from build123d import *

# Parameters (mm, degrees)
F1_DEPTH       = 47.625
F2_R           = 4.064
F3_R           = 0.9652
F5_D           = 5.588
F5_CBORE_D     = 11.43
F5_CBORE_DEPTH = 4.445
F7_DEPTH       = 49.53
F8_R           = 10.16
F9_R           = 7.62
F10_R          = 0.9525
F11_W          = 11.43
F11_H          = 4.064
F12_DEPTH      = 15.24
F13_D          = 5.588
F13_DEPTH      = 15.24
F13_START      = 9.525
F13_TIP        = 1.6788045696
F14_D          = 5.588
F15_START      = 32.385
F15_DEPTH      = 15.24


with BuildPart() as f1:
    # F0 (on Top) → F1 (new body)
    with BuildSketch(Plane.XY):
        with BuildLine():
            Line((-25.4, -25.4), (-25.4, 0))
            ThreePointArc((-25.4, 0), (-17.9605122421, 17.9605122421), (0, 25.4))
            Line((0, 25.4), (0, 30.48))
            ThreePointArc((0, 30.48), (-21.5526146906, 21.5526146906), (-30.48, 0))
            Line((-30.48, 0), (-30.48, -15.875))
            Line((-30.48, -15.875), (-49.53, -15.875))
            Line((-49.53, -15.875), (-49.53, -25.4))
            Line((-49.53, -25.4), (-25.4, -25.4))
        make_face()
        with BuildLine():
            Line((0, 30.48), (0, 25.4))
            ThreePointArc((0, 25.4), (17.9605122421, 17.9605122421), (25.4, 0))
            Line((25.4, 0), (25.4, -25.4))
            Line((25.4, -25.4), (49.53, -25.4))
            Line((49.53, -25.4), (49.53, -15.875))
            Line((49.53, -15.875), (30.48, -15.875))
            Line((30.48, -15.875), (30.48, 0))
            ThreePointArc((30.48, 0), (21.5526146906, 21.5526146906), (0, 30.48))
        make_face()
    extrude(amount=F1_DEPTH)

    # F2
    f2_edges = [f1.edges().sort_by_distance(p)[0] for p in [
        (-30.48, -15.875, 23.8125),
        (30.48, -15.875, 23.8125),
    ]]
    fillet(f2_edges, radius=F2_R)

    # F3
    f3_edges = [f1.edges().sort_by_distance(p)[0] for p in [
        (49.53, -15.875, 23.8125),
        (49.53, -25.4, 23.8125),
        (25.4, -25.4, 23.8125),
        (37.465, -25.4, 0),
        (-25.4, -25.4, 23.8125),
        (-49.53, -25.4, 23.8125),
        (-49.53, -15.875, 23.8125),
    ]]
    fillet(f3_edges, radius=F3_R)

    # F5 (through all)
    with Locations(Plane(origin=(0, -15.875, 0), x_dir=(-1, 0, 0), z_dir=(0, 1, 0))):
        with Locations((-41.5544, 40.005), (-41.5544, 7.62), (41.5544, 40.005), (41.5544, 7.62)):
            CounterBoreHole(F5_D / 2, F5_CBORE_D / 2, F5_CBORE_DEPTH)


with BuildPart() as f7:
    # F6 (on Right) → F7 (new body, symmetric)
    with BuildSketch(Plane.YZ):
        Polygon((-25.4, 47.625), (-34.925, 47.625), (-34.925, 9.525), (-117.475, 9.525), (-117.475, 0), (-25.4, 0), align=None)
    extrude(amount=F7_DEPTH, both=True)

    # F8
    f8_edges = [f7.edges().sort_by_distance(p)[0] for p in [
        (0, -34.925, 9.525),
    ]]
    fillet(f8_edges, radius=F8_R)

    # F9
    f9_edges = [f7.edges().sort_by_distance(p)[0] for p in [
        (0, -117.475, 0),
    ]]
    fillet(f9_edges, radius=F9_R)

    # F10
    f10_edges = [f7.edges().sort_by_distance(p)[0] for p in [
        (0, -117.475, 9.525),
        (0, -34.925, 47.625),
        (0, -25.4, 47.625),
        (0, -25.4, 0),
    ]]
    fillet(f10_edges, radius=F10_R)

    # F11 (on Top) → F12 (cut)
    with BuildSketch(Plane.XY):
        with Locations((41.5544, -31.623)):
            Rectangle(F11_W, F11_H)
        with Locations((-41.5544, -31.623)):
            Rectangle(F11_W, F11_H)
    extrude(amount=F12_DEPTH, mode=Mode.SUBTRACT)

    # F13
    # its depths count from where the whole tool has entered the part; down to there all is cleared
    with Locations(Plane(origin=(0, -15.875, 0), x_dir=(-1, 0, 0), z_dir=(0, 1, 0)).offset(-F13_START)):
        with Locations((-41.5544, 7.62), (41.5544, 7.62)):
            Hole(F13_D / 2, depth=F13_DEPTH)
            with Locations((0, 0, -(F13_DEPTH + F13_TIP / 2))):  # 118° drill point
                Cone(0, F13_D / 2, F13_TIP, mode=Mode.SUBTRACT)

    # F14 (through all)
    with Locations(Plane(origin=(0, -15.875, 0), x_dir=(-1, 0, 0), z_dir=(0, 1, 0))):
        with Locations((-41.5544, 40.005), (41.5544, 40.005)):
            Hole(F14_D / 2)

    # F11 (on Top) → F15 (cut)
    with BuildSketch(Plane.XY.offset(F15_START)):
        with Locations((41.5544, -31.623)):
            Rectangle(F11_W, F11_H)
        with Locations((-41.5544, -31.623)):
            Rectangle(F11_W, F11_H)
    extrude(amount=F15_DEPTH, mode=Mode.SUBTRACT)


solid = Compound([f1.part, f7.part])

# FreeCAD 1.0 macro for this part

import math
import FreeCAD as App
import Part
import Sketcher
from FreeCAD import Vector
Q = App.Units.Quantity


def edges_at(feature, points):
    """Names of the edges that pass closest to the given points."""
    edges = feature.Shape.Edges
    near = lambda p: min(range(len(edges)), key=lambda i: edges[i].distToShape(Part.Vertex(*p))[0])
    return sorted({f"Edge{near(p) + 1}" for p in points})

doc = App.newDocument("Part")
body = doc.addObject("PartDesign::Body", "Body")

sketch1 = body.newObject("Sketcher::SketchObject", "Sketch")
sketch1.AttachmentSupport = (doc.getObject("XY_Plane"), [""])
sketch1.MapMode = "FlatFace"
sketch1.addGeometry(Part.LineSegment(Vector(-25.4, -25.4, 0), Vector(-25.4, 0, 0)), False)
sketch1.addGeometry(Part.ArcOfCircle(Part.Circle(Vector(0, 0, 0), Vector(0, 0, 1), 25.4), math.radians(90), math.radians(180)), False)
sketch1.addGeometry(Part.ArcOfCircle(Part.Circle(Vector(0, 0, 0), Vector(0, 0, 1), 25.4), math.radians(0), math.radians(90)), False)
sketch1.addGeometry(Part.LineSegment(Vector(25.4, 0, 0), Vector(25.4, -25.4, 0)), False)
sketch1.addGeometry(Part.LineSegment(Vector(25.4, -25.4, 0), Vector(49.53, -25.4, 0)), False)
sketch1.addGeometry(Part.LineSegment(Vector(49.53, -25.4, 0), Vector(49.53, -15.875, 0)), False)
sketch1.addGeometry(Part.LineSegment(Vector(49.53, -15.875, 0), Vector(30.48, -15.875, 0)), False)
sketch1.addGeometry(Part.LineSegment(Vector(30.48, -15.875, 0), Vector(30.48, 0, 0)), False)
sketch1.addGeometry(Part.ArcOfCircle(Part.Circle(Vector(0, 0, 0), Vector(0, 0, 1), 30.48), math.radians(0), math.radians(90)), False)
sketch1.addGeometry(Part.ArcOfCircle(Part.Circle(Vector(0, 0, 0), Vector(0, 0, 1), 30.48), math.radians(90), math.radians(180)), False)
sketch1.addGeometry(Part.LineSegment(Vector(-30.48, 0, 0), Vector(-30.48, -15.875, 0)), False)
sketch1.addGeometry(Part.LineSegment(Vector(-30.48, -15.875, 0), Vector(-49.53, -15.875, 0)), False)
sketch1.addGeometry(Part.LineSegment(Vector(-49.53, -15.875, 0), Vector(-49.53, -25.4, 0)), False)
sketch1.addGeometry(Part.LineSegment(Vector(-49.53, -25.4, 0), Vector(-25.4, -25.4, 0)), False)
sketch1.addConstraint(Sketcher.Constraint("Tangent", 0, 2, 1, 2))
sketch1.addConstraint(Sketcher.Constraint("Tangent", 1, 1, 2, 2))
sketch1.addConstraint(Sketcher.Constraint("Tangent", 2, 1, 3, 1))
sketch1.addConstraint(Sketcher.Constraint("Coincident", 3, 2, 4, 1))
sketch1.addConstraint(Sketcher.Constraint("Coincident", 4, 2, 5, 1))
sketch1.addConstraint(Sketcher.Constraint("Coincident", 5, 2, 6, 1))
sketch1.addConstraint(Sketcher.Constraint("Coincident", 6, 2, 7, 1))
sketch1.addConstraint(Sketcher.Constraint("Tangent", 7, 2, 8, 1))
sketch1.addConstraint(Sketcher.Constraint("Tangent", 8, 2, 9, 1))
sketch1.addConstraint(Sketcher.Constraint("Tangent", 9, 2, 10, 1))
sketch1.addConstraint(Sketcher.Constraint("Coincident", 10, 2, 11, 1))
sketch1.addConstraint(Sketcher.Constraint("Coincident", 11, 2, 12, 1))
sketch1.addConstraint(Sketcher.Constraint("Coincident", 12, 2, 13, 1))
sketch1.addConstraint(Sketcher.Constraint("Coincident", 13, 2, 0, 1))
sketch1.addConstraint(Sketcher.Constraint("Vertical", 0))
sketch1.addConstraint(Sketcher.Constraint("Vertical", 3))
sketch1.addConstraint(Sketcher.Constraint("Horizontal", 4))
sketch1.addConstraint(Sketcher.Constraint("Vertical", 5))
sketch1.addConstraint(Sketcher.Constraint("Horizontal", 6))
sketch1.addConstraint(Sketcher.Constraint("Vertical", 7))
sketch1.addConstraint(Sketcher.Constraint("Vertical", 10))
sketch1.addConstraint(Sketcher.Constraint("Horizontal", 11))
sketch1.addConstraint(Sketcher.Constraint("Vertical", 12))
sketch1.addConstraint(Sketcher.Constraint("Horizontal", 13))
sketch1.addConstraint(Sketcher.Constraint("Coincident", 1, 3, -1, 1))
sketch1.addConstraint(Sketcher.Constraint("Coincident", 8, 3, -1, 1))
sketch1.addConstraint(Sketcher.Constraint("Equal", 1, 2))
sketch1.addConstraint(Sketcher.Constraint("Equal", 8, 9))
sketch1.addConstraint(Sketcher.Constraint("Symmetric", 5, 2, 11, 2, -2))
sketch1.addConstraint(Sketcher.Constraint("PointOnObject", 1, 1, -2))
sketch1.addConstraint(Sketcher.Constraint("PointOnObject", 8, 2, -2))
sketch1.addConstraint(Sketcher.Constraint("Horizontal", 4, 2, 12, 2))
sketch1.addConstraint(Sketcher.Constraint("Radius", 1, Q("1 in")))
sketch1.addConstraint(Sketcher.Constraint("Radius", 8, Q("1.2 in")))
sketch1.addConstraint(Sketcher.Constraint("DistanceY", 0, 1, 0, 2, Q("1 in")))
sketch1.addConstraint(Sketcher.Constraint("DistanceX", 4, 1, 4, 2, Q("0.95 in")))
sketch1.addConstraint(Sketcher.Constraint("DistanceY", 5, 1, 5, 2, Q("0.375 in")))
pad1 = body.newObject("PartDesign::Pad", "Pad")
pad1.Profile = sketch1
pad1.Length = Q("1.875 in")
doc.recompute()

fillet = body.newObject("PartDesign::Fillet", "Fillet")
fillet.Base = (pad1, edges_at(pad1, [(-30.48, -15.875, 23.812), (30.48, -15.875, 23.812)]))
fillet.Radius = Q("0.16 in")
doc.recompute()

fillet2 = body.newObject("PartDesign::Fillet", "Fillet001")
fillet2.Base = (fillet, edges_at(fillet, [
    (49.53, -15.875, 23.812),
    (49.53, -25.4, 23.812),
    (25.4, -25.4, 23.812),
    (37.465, -25.4, 0),
    (-25.4, -25.4, 23.812),
    (-49.53, -25.4, 23.812),
    (-49.53, -15.875, 23.812),
]))
fillet2.Radius = Q("0.038 in")

sketch2 = body.newObject("Sketcher::SketchObject", "Sketch001")
sketch2.AttachmentSupport = (doc.getObject("XZ_Plane"), [""])
sketch2.MapMode = "FlatFace"
sketch2.AttachmentOffset = App.Placement(Vector(0, 0, 0.625 * 25.4), App.Rotation())
sketch2.addGeometry(Part.Circle(Vector(41.5544, 40.005, 0), Vector(0, 0, 1), 2.794), False)
sketch2.addGeometry(Part.Circle(Vector(41.5544, 7.62, 0), Vector(0, 0, 1), 2.794), False)
sketch2.addGeometry(Part.Circle(Vector(-41.5544, 40.005, 0), Vector(0, 0, 1), 2.794), False)
sketch2.addGeometry(Part.Circle(Vector(-41.5544, 7.62, 0), Vector(0, 0, 1), 2.794), False)
sketch2.addConstraint(Sketcher.Constraint("Equal", 0, 1))
sketch2.addConstraint(Sketcher.Constraint("Equal", 1, 2))
sketch2.addConstraint(Sketcher.Constraint("Equal", 2, 3))
sketch2.addConstraint(Sketcher.Constraint("Symmetric", 0, 3, 2, 3, -2))
sketch2.addConstraint(Sketcher.Constraint("Symmetric", 1, 3, 3, 3, -2))
sketch2.addConstraint(Sketcher.Constraint("Vertical", 0, 3, 1, 3))
sketch2.addConstraint(Sketcher.Constraint("Diameter", 0, Q("0.22 in")))
sketch2.addConstraint(Sketcher.Constraint("DistanceY", -1, 1, 1, 3, Q("0.3 in")))
sketch2.addConstraint(Sketcher.Constraint("DistanceX", -1, 1, 0, 3, Q("1.636 in")))
sketch2.addConstraint(Sketcher.Constraint("DistanceY", -1, 1, 0, 3, Q("1.575 in")))
doc.recompute()
hole = body.newObject("PartDesign::Hole", "Hole")
hole.Profile = sketch2
hole.ThreadType = "None"
hole.Diameter = Q("0.22 in")
hole.DepthType = "ThroughAll"
hole.HoleCutType = "Counterbore"
hole.HoleCutDiameter = Q("0.45 in")
hole.HoleCutDepth = Q("0.175 in")
hole.Reversed = True
body2 = doc.addObject("PartDesign::Body", "Body001")

sketch3 = body2.newObject("Sketcher::SketchObject", "Sketch002")
sketch3.AttachmentSupport = (doc.getObject("YZ_Plane001"), [""])
sketch3.MapMode = "FlatFace"
sketch3.addGeometry(Part.LineSegment(Vector(-25.4, 47.625, 0), Vector(-34.925, 47.625, 0)), False)
sketch3.addGeometry(Part.LineSegment(Vector(-34.925, 47.625, 0), Vector(-34.925, 9.525, 0)), False)
sketch3.addGeometry(Part.LineSegment(Vector(-34.925, 9.525, 0), Vector(-117.475, 9.525, 0)), False)
sketch3.addGeometry(Part.LineSegment(Vector(-117.475, 9.525, 0), Vector(-117.475, 0, 0)), False)
sketch3.addGeometry(Part.LineSegment(Vector(-117.475, 0, 0), Vector(-25.4, 0, 0)), False)
sketch3.addGeometry(Part.LineSegment(Vector(-25.4, 0, 0), Vector(-25.4, 47.625, 0)), False)
sketch3.addConstraint(Sketcher.Constraint("Coincident", 0, 2, 1, 1))
sketch3.addConstraint(Sketcher.Constraint("Coincident", 1, 2, 2, 1))
sketch3.addConstraint(Sketcher.Constraint("Coincident", 2, 2, 3, 1))
sketch3.addConstraint(Sketcher.Constraint("Coincident", 3, 2, 4, 1))
sketch3.addConstraint(Sketcher.Constraint("Coincident", 4, 2, 5, 1))
sketch3.addConstraint(Sketcher.Constraint("Coincident", 5, 2, 0, 1))
sketch3.addConstraint(Sketcher.Constraint("Horizontal", 0))
sketch3.addConstraint(Sketcher.Constraint("Vertical", 1))
sketch3.addConstraint(Sketcher.Constraint("Horizontal", 2))
sketch3.addConstraint(Sketcher.Constraint("Vertical", 3))
sketch3.addConstraint(Sketcher.Constraint("Horizontal", 4))
sketch3.addConstraint(Sketcher.Constraint("Vertical", 5))
sketch3.addConstraint(Sketcher.Constraint("PointOnObject", 3, 2, -1))
sketch3.addConstraint(Sketcher.Constraint("Equal", 0, 3))
sketch3.addConstraint(Sketcher.Constraint("DistanceY", 1, 2, 1, 1, Q("1.5 in")))
sketch3.addConstraint(Sketcher.Constraint("DistanceX", 4, 2, -1, 1, Q("1 in")))
sketch3.addConstraint(Sketcher.Constraint("DistanceX", 2, 2, 2, 1, Q("3.25 in")))
sketch3.addConstraint(Sketcher.Constraint("DistanceX", 0, 2, 0, 1, Q("0.375 in")))
pad2 = body2.newObject("PartDesign::Pad", "Pad001")
pad2.Profile = sketch3
pad2.Length = Q("3.9 in")
pad2.Midplane = True
doc.recompute()

fillet3 = body2.newObject("PartDesign::Fillet", "Fillet002")
fillet3.Base = (pad2, edges_at(pad2, [(0, -34.925, 9.525)]))
fillet3.Radius = Q("0.4 in")
doc.recompute()

fillet4 = body2.newObject("PartDesign::Fillet", "Fillet003")
fillet4.Base = (fillet3, edges_at(fillet3, [(0, -117.475, 0)]))
fillet4.Radius = Q("0.3 in")
doc.recompute()

fillet5 = body2.newObject("PartDesign::Fillet", "Fillet004")
fillet5.Base = (fillet4, edges_at(fillet4, [
    (0, -117.475, 9.525),
    (0, -34.925, 47.625),
    (0, -25.4, 47.625),
    (0, -25.4, 0),
]))
fillet5.Radius = Q("0.0375 in")

sketch4 = body2.newObject("Sketcher::SketchObject", "Sketch003")
sketch4.AttachmentSupport = (doc.getObject("XY_Plane001"), [""])
sketch4.MapMode = "FlatFace"
sketch4.addGeometry(Part.LineSegment(Vector(35.8394, -29.591, 0), Vector(35.8394, -33.655, 0)), False)
sketch4.addGeometry(Part.LineSegment(Vector(35.8394, -33.655, 0), Vector(47.2694, -33.655, 0)), False)
sketch4.addGeometry(Part.LineSegment(Vector(47.2694, -33.655, 0), Vector(47.2694, -29.591, 0)), False)
sketch4.addGeometry(Part.LineSegment(Vector(47.2694, -29.591, 0), Vector(35.8394, -29.591, 0)), False)
sketch4.addGeometry(Part.LineSegment(Vector(-47.2694, -29.591, 0), Vector(-47.2694, -33.655, 0)), False)
sketch4.addGeometry(Part.LineSegment(Vector(-47.2694, -33.655, 0), Vector(-35.8394, -33.655, 0)), False)
sketch4.addGeometry(Part.LineSegment(Vector(-35.8394, -33.655, 0), Vector(-35.8394, -29.591, 0)), False)
sketch4.addGeometry(Part.LineSegment(Vector(-35.8394, -29.591, 0), Vector(-47.2694, -29.591, 0)), False)
sketch4.addConstraint(Sketcher.Constraint("Coincident", 0, 2, 1, 1))
sketch4.addConstraint(Sketcher.Constraint("Coincident", 1, 2, 2, 1))
sketch4.addConstraint(Sketcher.Constraint("Coincident", 2, 2, 3, 1))
sketch4.addConstraint(Sketcher.Constraint("Coincident", 3, 2, 0, 1))
sketch4.addConstraint(Sketcher.Constraint("Coincident", 4, 2, 5, 1))
sketch4.addConstraint(Sketcher.Constraint("Coincident", 5, 2, 6, 1))
sketch4.addConstraint(Sketcher.Constraint("Coincident", 6, 2, 7, 1))
sketch4.addConstraint(Sketcher.Constraint("Coincident", 7, 2, 4, 1))
sketch4.addConstraint(Sketcher.Constraint("Vertical", 0))
sketch4.addConstraint(Sketcher.Constraint("Horizontal", 1))
sketch4.addConstraint(Sketcher.Constraint("Vertical", 2))
sketch4.addConstraint(Sketcher.Constraint("Horizontal", 3))
sketch4.addConstraint(Sketcher.Constraint("Vertical", 4))
sketch4.addConstraint(Sketcher.Constraint("Horizontal", 5))
sketch4.addConstraint(Sketcher.Constraint("Vertical", 6))
sketch4.addConstraint(Sketcher.Constraint("Horizontal", 7))
sketch4.addConstraint(Sketcher.Constraint("Symmetric", 1, 2, 4, 2, -2))
sketch4.addConstraint(Sketcher.Constraint("Symmetric", 3, 2, 6, 2, -2))
sketch4.addConstraint(Sketcher.Constraint("DistanceX", 1, 1, 1, 2, Q("0.45 in")))
sketch4.addConstraint(Sketcher.Constraint("DistanceY", 0, 2, 0, 1, Q("0.16 in")))
sketch4.addConstraint(Sketcher.Constraint("DistanceX", -1, 1, 0, 2, Q("1.411 in")))
sketch4.addConstraint(Sketcher.Constraint("DistanceY", 0, 2, -1, 1, Q("1.325 in")))
pocket1 = body2.newObject("PartDesign::Pocket", "Pocket")
pocket1.Profile = sketch4
pocket1.Length = Q("0.6 in")
pocket1.Reversed = True

sketch5 = body2.newObject("Sketcher::SketchObject", "Sketch004")
sketch5.AttachmentSupport = (doc.getObject("XZ_Plane001"), [""])
sketch5.MapMode = "FlatFace"
sketch5.AttachmentOffset = App.Placement(Vector(0, 0, 1 * 25.4), App.Rotation())
sketch5.addGeometry(Part.Circle(Vector(41.5544, 7.62, 0), Vector(0, 0, 1), 2.794), False)
sketch5.addGeometry(Part.Circle(Vector(-41.5544, 7.62, 0), Vector(0, 0, 1), 2.794), False)
sketch5.addConstraint(Sketcher.Constraint("Equal", 0, 1))
sketch5.addConstraint(Sketcher.Constraint("Symmetric", 0, 3, 1, 3, -2))
sketch5.addConstraint(Sketcher.Constraint("Diameter", 0, Q("0.22 in")))
sketch5.addConstraint(Sketcher.Constraint("DistanceY", -1, 1, 0, 3, Q("0.3 in")))
sketch5.addConstraint(Sketcher.Constraint("DistanceX", -1, 1, 0, 3, Q("1.636 in")))
doc.recompute()
hole2 = body2.newObject("PartDesign::Hole", "Hole001")
hole2.Profile = sketch5
hole2.ThreadType = "None"
hole2.Diameter = Q("0.22 in")
hole2.DepthType = "Dimension"
hole2.Depth = Q("0.6 in")
hole2.DrillPoint = "Angled"
hole2.DrillPointAngle = 118
hole2.Reversed = True

sketch6 = body2.newObject("Sketcher::SketchObject", "Sketch005")
sketch6.AttachmentSupport = (doc.getObject("XZ_Plane001"), [""])
sketch6.MapMode = "FlatFace"
sketch6.AttachmentOffset = App.Placement(Vector(0, 0, 0.625 * 25.4), App.Rotation())
sketch6.addGeometry(Part.Circle(Vector(41.5544, 40.005, 0), Vector(0, 0, 1), 2.794), False)
sketch6.addGeometry(Part.Circle(Vector(-41.5544, 40.005, 0), Vector(0, 0, 1), 2.794), False)
sketch6.addConstraint(Sketcher.Constraint("Equal", 0, 1))
sketch6.addConstraint(Sketcher.Constraint("Symmetric", 0, 3, 1, 3, -2))
sketch6.addConstraint(Sketcher.Constraint("Diameter", 0, Q("0.22 in")))
sketch6.addConstraint(Sketcher.Constraint("DistanceX", -1, 1, 0, 3, Q("1.636 in")))
sketch6.addConstraint(Sketcher.Constraint("DistanceY", -1, 1, 0, 3, Q("1.575 in")))
doc.recompute()
hole3 = body2.newObject("PartDesign::Hole", "Hole002")
hole3.Profile = sketch6
hole3.ThreadType = "None"
hole3.Diameter = Q("0.22 in")
hole3.DepthType = "ThroughAll"
hole3.Reversed = True

sketch7 = body2.newObject("Sketcher::SketchObject", "Sketch006")
sketch7.AttachmentSupport = (doc.getObject("XY_Plane001"), [""])
sketch7.MapMode = "FlatFace"
sketch7.AttachmentOffset = App.Placement(Vector(0, 0, 1.275 * 25.4), App.Rotation())
sketch7.addGeometry(Part.LineSegment(Vector(35.8394, -29.591, 0), Vector(35.8394, -33.655, 0)), False)
sketch7.addGeometry(Part.LineSegment(Vector(35.8394, -33.655, 0), Vector(47.2694, -33.655, 0)), False)
sketch7.addGeometry(Part.LineSegment(Vector(47.2694, -33.655, 0), Vector(47.2694, -29.591, 0)), False)
sketch7.addGeometry(Part.LineSegment(Vector(47.2694, -29.591, 0), Vector(35.8394, -29.591, 0)), False)
sketch7.addGeometry(Part.LineSegment(Vector(-47.2694, -29.591, 0), Vector(-47.2694, -33.655, 0)), False)
sketch7.addGeometry(Part.LineSegment(Vector(-47.2694, -33.655, 0), Vector(-35.8394, -33.655, 0)), False)
sketch7.addGeometry(Part.LineSegment(Vector(-35.8394, -33.655, 0), Vector(-35.8394, -29.591, 0)), False)
sketch7.addGeometry(Part.LineSegment(Vector(-35.8394, -29.591, 0), Vector(-47.2694, -29.591, 0)), False)
sketch7.addConstraint(Sketcher.Constraint("Coincident", 0, 2, 1, 1))
sketch7.addConstraint(Sketcher.Constraint("Coincident", 1, 2, 2, 1))
sketch7.addConstraint(Sketcher.Constraint("Coincident", 2, 2, 3, 1))
sketch7.addConstraint(Sketcher.Constraint("Coincident", 3, 2, 0, 1))
sketch7.addConstraint(Sketcher.Constraint("Coincident", 4, 2, 5, 1))
sketch7.addConstraint(Sketcher.Constraint("Coincident", 5, 2, 6, 1))
sketch7.addConstraint(Sketcher.Constraint("Coincident", 6, 2, 7, 1))
sketch7.addConstraint(Sketcher.Constraint("Coincident", 7, 2, 4, 1))
sketch7.addConstraint(Sketcher.Constraint("Vertical", 0))
sketch7.addConstraint(Sketcher.Constraint("Horizontal", 1))
sketch7.addConstraint(Sketcher.Constraint("Vertical", 2))
sketch7.addConstraint(Sketcher.Constraint("Horizontal", 3))
sketch7.addConstraint(Sketcher.Constraint("Vertical", 4))
sketch7.addConstraint(Sketcher.Constraint("Horizontal", 5))
sketch7.addConstraint(Sketcher.Constraint("Vertical", 6))
sketch7.addConstraint(Sketcher.Constraint("Horizontal", 7))
sketch7.addConstraint(Sketcher.Constraint("Symmetric", 1, 2, 4, 2, -2))
sketch7.addConstraint(Sketcher.Constraint("Symmetric", 3, 2, 6, 2, -2))
sketch7.addConstraint(Sketcher.Constraint("DistanceX", 1, 1, 1, 2, Q("0.45 in")))
sketch7.addConstraint(Sketcher.Constraint("DistanceY", 0, 2, 0, 1, Q("0.16 in")))
sketch7.addConstraint(Sketcher.Constraint("DistanceX", -1, 1, 0, 2, Q("1.411 in")))
sketch7.addConstraint(Sketcher.Constraint("DistanceY", 0, 2, -1, 1, Q("1.325 in")))
pocket2 = body2.newObject("PartDesign::Pocket", "Pocket001")
pocket2.Profile = sketch7
pocket2.Length = Q("0.6 in")
pocket2.Reversed = True

doc.recompute()
